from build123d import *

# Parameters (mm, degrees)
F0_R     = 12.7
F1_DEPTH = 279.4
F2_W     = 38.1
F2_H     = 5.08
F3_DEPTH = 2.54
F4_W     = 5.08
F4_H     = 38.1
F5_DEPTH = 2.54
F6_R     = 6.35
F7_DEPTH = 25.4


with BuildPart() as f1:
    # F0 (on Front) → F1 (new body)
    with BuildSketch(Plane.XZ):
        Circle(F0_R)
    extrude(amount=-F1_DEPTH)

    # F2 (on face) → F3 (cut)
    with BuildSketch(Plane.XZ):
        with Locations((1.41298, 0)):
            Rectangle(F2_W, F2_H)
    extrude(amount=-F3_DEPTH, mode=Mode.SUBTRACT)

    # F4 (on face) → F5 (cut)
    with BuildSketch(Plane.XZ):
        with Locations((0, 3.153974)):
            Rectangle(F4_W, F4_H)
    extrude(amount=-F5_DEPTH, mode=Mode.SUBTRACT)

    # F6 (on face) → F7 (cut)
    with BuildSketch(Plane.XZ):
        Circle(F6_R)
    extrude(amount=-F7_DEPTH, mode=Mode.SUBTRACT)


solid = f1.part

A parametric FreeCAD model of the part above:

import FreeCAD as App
import Part
import Sketcher

V = App.Vector
Q = App.Units.Quantity

doc = App.newDocument("Part")
body = doc.addObject("PartDesign::Body", "Body")

# Sketch on XZ plane
sketch1 = doc.addObject("Sketcher::SketchObject", "Sketch")
body.addObject(sketch1)
sketch1.AttachmentSupport = (doc.XZ_Plane, [""])
sketch1.MapMode = "FlatFace"
sketch1.addGeometry(Part.Circle(V(0, 0, 0), V(0, 0, 1), 13), False)
sketch1.addConstraint(Sketcher.Constraint("Coincident", 0, 3, -1, 1))
sketch1.addConstraint(Sketcher.Constraint("Diameter", 0, Q("1 in")))
pad1 = doc.addObject("PartDesign::Pad", "Pad")
body.addObject(pad1)
pad1.Profile = sketch1
pad1.Length = Q("11 in")
pad1.Reversed = True

# Sketch on XZ plane
sketch2 = doc.addObject("Sketcher::SketchObject", "Sketch001")
body.addObject(sketch2)
sketch2.AttachmentSupport = (doc.XZ_Plane, [""])
sketch2.MapMode = "FlatFace"
sketch2.addGeometry(Part.LineSegment(V(-18, 3, 0), V(-18, -3, 0)), False)
sketch2.addGeometry(Part.LineSegment(V(-18, -3, 0), V(20, -3, 0)), False)
sketch2.addGeometry(Part.LineSegment(V(20, -3, 0), V(20, 3, 0)), False)
sketch2.addGeometry(Part.LineSegment(V(20, 3, 0), V(-18, 3, 0)), False)
sketch2.addConstraint(Sketcher.Constraint("Coincident", 0, 2, 1, 1))
sketch2.addConstraint(Sketcher.Constraint("Coincident", 1, 2, 2, 1))
sketch2.addConstraint(Sketcher.Constraint("Coincident", 2, 2, 3, 1))
sketch2.addConstraint(Sketcher.Constraint("Coincident", 3, 2, 0, 1))
sketch2.addConstraint(Sketcher.Constraint("Vertical", 0))
sketch2.addConstraint(Sketcher.Constraint("Horizontal", 1))
sketch2.addConstraint(Sketcher.Constraint("Vertical", 2))
sketch2.addConstraint(Sketcher.Constraint("Horizontal", 3))
sketch2.addConstraint(Sketcher.Constraint("DistanceX", 1, 1, 1, 2, Q("1.5 in")))
sketch2.addConstraint(Sketcher.Constraint("DistanceY", 0, 2, 0, 1, Q("0.2 in")))
sketch2.addConstraint(Sketcher.Constraint("DistanceY", 0, 2, -1, 1, Q("0.1 in")))
sketch2.addConstraint(Sketcher.Constraint("DistanceX", 0, 2, -1, 1, Q("17.63702 mm")))
pocket1 = doc.addObject("PartDesign::Pocket", "Pocket")
body.addObject(pocket1)
pocket1.Profile = sketch2
pocket1.Length = Q("0.1 in")

# Sketch on XZ plane
sketch3 = doc.addObject("Sketcher::SketchObject", "Sketch002")
body.addObject(sketch3)
sketch3.AttachmentSupport = (doc.XZ_Plane, [""])
sketch3.MapMode = "FlatFace"
sketch3.addGeometry(Part.LineSegment(V(-3, 22, 0), V(-3, -16, 0)), False)
sketch3.addGeometry(Part.LineSegment(V(-3, -16, 0), V(3, -16, 0)), False)
sketch3.addGeometry(Part.LineSegment(V(3, -16, 0), V(3, 22, 0)), False)
sketch3.addGeometry(Part.LineSegment(V(3, 22, 0), V(-3, 22, 0)), False)
sketch3.addConstraint(Sketcher.Constraint("Coincident", 0, 2, 1, 1))
sketch3.addConstraint(Sketcher.Constraint("Coincident", 1, 2, 2, 1))
sketch3.addConstraint(Sketcher.Constraint("Coincident", 2, 2, 3, 1))
sketch3.addConstraint(Sketcher.Constraint("Coincident", 3, 2, 0, 1))
sketch3.addConstraint(Sketcher.Constraint("Vertical", 0))
sketch3.addConstraint(Sketcher.Constraint("Horizontal", 1))
sketch3.addConstraint(Sketcher.Constraint("Vertical", 2))
sketch3.addConstraint(Sketcher.Constraint("Horizontal", 3))
sketch3.addConstraint(Sketcher.Constraint("DistanceX", 1, 1, 1, 2, Q("0.2 in")))
sketch3.addConstraint(Sketcher.Constraint("DistanceY", 0, 2, 0, 1, Q("1.5 in")))
sketch3.addConstraint(Sketcher.Constraint("DistanceX", 0, 2, -1, 1, Q("0.1 in")))
sketch3.addConstraint(Sketcher.Constraint("DistanceY", 0, 2, -1, 1, Q("15.896026 mm")))
pocket2 = doc.addObject("PartDesign::Pocket", "Pocket001")
body.addObject(pocket2)
pocket2.Profile = sketch3
pocket2.Length = Q("0.1 in")

# Sketch on XZ plane
sketch4 = doc.addObject("Sketcher::SketchObject", "Sketch003")
body.addObject(sketch4)
sketch4.AttachmentSupport = (doc.XZ_Plane, [""])
sketch4.MapMode = "FlatFace"
sketch4.addGeometry(Part.Circle(V(0, 0, 0), V(0, 0, 1), 6), False)
sketch4.addConstraint(Sketcher.Constraint("Coincident", 0, 3, -1, 1))
sketch4.addConstraint(Sketcher.Constraint("Diameter", 0, Q("0.5 in")))
pocket3 = doc.addObject("PartDesign::Pocket", "Pocket002")
body.addObject(pocket3)
pocket3.Profile = sketch4
pocket3.Length = Q("1 in")

doc.recompute()
